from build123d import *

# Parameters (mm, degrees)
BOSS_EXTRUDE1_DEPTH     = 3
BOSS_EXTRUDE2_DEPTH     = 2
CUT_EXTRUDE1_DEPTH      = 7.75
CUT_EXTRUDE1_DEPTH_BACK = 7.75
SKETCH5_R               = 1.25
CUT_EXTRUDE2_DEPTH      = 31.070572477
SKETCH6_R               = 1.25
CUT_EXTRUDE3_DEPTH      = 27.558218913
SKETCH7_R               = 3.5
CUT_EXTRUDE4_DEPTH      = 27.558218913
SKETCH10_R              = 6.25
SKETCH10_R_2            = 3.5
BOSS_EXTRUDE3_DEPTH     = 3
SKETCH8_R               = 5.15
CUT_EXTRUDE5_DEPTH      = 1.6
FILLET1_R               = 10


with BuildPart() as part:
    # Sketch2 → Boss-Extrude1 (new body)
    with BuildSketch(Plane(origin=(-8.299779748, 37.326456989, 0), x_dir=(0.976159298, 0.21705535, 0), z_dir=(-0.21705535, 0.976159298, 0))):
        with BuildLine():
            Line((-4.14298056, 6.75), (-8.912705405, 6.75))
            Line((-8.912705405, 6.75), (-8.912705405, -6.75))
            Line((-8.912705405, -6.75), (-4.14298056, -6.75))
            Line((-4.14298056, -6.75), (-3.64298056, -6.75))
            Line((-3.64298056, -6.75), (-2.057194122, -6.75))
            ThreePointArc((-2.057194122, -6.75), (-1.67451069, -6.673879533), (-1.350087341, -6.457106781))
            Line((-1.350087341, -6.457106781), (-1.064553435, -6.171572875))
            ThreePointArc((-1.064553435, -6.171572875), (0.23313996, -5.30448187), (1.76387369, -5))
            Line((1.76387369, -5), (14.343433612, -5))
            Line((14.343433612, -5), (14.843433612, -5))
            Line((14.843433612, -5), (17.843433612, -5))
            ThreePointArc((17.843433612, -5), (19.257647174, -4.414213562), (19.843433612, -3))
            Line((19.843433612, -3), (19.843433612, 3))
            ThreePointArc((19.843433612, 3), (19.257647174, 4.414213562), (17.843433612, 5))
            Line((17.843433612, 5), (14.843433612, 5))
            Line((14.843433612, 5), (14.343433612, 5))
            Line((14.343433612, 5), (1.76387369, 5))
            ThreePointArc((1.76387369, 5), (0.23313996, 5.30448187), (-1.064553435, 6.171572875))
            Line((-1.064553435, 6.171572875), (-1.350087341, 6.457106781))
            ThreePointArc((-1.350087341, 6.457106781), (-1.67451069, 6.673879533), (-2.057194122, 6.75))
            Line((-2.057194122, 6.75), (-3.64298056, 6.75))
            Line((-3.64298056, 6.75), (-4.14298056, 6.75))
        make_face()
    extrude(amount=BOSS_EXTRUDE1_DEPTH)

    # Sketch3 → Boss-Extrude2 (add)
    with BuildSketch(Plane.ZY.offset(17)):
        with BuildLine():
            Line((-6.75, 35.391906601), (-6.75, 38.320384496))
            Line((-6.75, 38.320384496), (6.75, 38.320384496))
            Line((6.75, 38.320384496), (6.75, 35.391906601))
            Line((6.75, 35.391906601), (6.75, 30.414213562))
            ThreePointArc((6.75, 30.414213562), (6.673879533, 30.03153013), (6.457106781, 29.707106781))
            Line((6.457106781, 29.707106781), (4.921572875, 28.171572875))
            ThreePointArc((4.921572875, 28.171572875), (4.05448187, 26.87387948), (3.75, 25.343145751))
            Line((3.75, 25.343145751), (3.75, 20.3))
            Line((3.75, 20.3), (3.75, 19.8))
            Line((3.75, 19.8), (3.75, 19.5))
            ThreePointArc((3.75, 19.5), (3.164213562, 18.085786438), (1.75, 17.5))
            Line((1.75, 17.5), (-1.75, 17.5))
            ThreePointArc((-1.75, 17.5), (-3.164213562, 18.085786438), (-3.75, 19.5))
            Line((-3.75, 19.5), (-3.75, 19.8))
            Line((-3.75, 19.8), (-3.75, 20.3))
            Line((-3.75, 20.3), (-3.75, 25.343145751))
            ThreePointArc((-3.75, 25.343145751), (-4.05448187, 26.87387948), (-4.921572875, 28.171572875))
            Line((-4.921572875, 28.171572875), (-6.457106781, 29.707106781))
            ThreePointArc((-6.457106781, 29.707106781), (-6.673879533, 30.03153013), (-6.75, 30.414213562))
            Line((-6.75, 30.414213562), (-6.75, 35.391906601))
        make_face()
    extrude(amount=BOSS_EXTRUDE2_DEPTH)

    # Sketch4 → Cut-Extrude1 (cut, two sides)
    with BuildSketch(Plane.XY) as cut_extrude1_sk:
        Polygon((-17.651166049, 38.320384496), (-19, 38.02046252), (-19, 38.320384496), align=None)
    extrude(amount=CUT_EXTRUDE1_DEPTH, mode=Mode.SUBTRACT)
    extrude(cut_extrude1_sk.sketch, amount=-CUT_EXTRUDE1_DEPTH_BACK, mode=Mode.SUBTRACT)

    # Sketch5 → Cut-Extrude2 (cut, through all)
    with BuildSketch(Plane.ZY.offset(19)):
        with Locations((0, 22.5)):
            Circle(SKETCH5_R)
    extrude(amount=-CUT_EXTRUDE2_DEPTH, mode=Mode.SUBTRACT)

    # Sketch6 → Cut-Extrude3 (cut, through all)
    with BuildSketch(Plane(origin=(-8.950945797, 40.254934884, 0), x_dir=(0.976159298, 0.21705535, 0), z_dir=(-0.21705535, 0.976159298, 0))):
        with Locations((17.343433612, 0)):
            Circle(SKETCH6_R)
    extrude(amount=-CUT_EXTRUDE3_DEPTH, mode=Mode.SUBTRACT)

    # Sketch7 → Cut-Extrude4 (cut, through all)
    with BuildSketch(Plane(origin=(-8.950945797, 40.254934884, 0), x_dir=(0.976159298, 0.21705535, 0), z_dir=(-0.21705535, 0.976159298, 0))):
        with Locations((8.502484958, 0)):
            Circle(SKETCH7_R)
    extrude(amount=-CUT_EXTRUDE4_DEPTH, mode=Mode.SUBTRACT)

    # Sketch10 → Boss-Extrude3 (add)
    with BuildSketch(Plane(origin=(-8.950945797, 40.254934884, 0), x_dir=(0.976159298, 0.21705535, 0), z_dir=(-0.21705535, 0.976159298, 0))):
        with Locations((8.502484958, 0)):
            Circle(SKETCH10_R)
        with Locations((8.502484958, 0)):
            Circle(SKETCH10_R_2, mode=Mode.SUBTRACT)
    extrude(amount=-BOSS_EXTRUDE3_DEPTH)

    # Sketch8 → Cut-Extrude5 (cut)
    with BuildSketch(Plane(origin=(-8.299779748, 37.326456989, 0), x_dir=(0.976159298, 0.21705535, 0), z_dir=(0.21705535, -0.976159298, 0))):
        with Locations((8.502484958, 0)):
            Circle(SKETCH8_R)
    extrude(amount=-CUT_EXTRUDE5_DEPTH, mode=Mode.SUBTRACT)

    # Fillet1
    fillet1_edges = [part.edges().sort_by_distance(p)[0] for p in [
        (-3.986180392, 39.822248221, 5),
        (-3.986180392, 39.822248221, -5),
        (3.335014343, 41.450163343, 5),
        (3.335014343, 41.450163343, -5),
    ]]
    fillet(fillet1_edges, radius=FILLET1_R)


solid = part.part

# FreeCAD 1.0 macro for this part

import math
import FreeCAD as App
import Part
import Sketcher
Q = App.Units.Quantity


def edges_at(feature, points):
    """Names of the edges that pass closest to the given points."""
    edges = feature.Shape.Edges
    near = lambda p: min(range(len(edges)), key=lambda i: edges[i].distToShape(Part.Vertex(*p))[0])
    return sorted({f"Edge{near(p) + 1}" for p in points})

doc = App.newDocument("Part")
body = doc.addObject("PartDesign::Body", "Body")

# Sketch on an angled plane
sketch1 = doc.addObject("Sketcher::SketchObject", "Sketch")
body.addObject(sketch1)
sketch1.Placement = App.Placement(App.Vector(-8.29978, 37.326457, 0), App.Rotation(App.Vector(0.976159298, 0.21705535, 0), App.Vector(0, 0, -1), App.Vector(-0.21705535, 0.976159298, 0), "ZXY"))
sketch1.addGeometry([
    Part.LineSegment(App.Vector(-8.91, 6.75, 0), App.Vector(-8.91, -6.75, 0)),  # 0
    Part.LineSegment(App.Vector(-8.91, -6.75, 0), App.Vector(-2.06, -6.75, 0)),  # 1
    Part.ArcOfCircle(Part.Circle(App.Vector(-2.06, -5.75, 0), App.Vector(0, 0, 1), 1), math.radians(-90), math.radians(-45)),  # 2
    Part.LineSegment(App.Vector(-1.35, -6.46, 0), App.Vector(-1.06, -6.17, 0)),  # 3
    Part.ArcOfCircle(Part.Circle(App.Vector(1.76, -9, 0), App.Vector(0, 0, 1), 4), math.radians(90), math.radians(135)),  # 4
    Part.LineSegment(App.Vector(1.76, -5, 0), App.Vector(17.84, -5, 0)),  # 5
    Part.ArcOfCircle(Part.Circle(App.Vector(17.84, -3, 0), App.Vector(0, 0, 1), 2), math.radians(-90), math.radians(0)),  # 6
    Part.LineSegment(App.Vector(19.84, -3, 0), App.Vector(19.84, 3, 0)),  # 7
    Part.ArcOfCircle(Part.Circle(App.Vector(17.84, 3, 0), App.Vector(0, 0, 1), 2), math.radians(0), math.radians(90)),  # 8
    Part.LineSegment(App.Vector(17.84, 5, 0), App.Vector(1.76, 5, 0)),  # 9
    Part.ArcOfCircle(Part.Circle(App.Vector(1.76, 9, 0), App.Vector(0, 0, 1), 4), math.radians(-135), math.radians(-90)),  # 10
    Part.LineSegment(App.Vector(-1.06, 6.17, 0), App.Vector(-1.35, 6.46, 0)),  # 11
    Part.ArcOfCircle(Part.Circle(App.Vector(-2.06, 5.75, 0), App.Vector(0, 0, 1), 1), math.radians(45), math.radians(90)),  # 12
    Part.LineSegment(App.Vector(-2.06, 6.75, 0), App.Vector(-8.91, 6.75, 0)),  # 13
], False)
sketch1.addConstraint([
    Sketcher.Constraint("Coincident", 0, 2, 1, 1),
    Sketcher.Constraint("Tangent", 1, 2, 2, 1),
    Sketcher.Constraint("Tangent", 2, 2, 3, 1),
    Sketcher.Constraint("Tangent", 3, 2, 4, 2),
    Sketcher.Constraint("Tangent", 4, 1, 5, 1),
    Sketcher.Constraint("Tangent", 5, 2, 6, 1),
    Sketcher.Constraint("Tangent", 6, 2, 7, 1),
    Sketcher.Constraint("Tangent", 7, 2, 8, 1),
    Sketcher.Constraint("Tangent", 8, 2, 9, 1),
    Sketcher.Constraint("Tangent", 9, 2, 10, 2),
    Sketcher.Constraint("Tangent", 10, 1, 11, 1),
    Sketcher.Constraint("Tangent", 11, 2, 12, 1),
    Sketcher.Constraint("Tangent", 12, 2, 13, 1),
    Sketcher.Constraint("Coincident", 13, 2, 0, 1),
    Sketcher.Constraint("Vertical", 0),
    Sketcher.Constraint("Horizontal", 1),
    Sketcher.Constraint("Horizontal", 5),
    Sketcher.Constraint("Vertical", 7),
    Sketcher.Constraint("Horizontal", 9),
    Sketcher.Constraint("Horizontal", 13),
    Sketcher.Constraint("Equal", 6, 8),
    Sketcher.Constraint("Equal", 4, 10),
    Sketcher.Constraint("Equal", 2, 12),
    Sketcher.Constraint("Symmetric", 4, 3, 10, 3, -1),
    Sketcher.Constraint("Symmetric", 2, 3, 12, 3, -1),
    Sketcher.Constraint("Perpendicular", 3, 11),
    Sketcher.Constraint("Radius", 2, Q("1 mm")),
    Sketcher.Constraint("Radius", 4, Q("4 mm")),
    Sketcher.Constraint("Radius", 6, Q("2 mm")),
    Sketcher.Constraint("DistanceY", 7, 1, 7, 2, Q("6 mm")),
    Sketcher.Constraint("DistanceY", 0, 2, 0, 1, Q("13.5 mm")),
    Sketcher.Constraint("DistanceX", 1, 1, 1, 2, Q("6.855511 mm")),
    Sketcher.Constraint("DistanceX", 5, 1, 5, 2, Q("16.07956 mm")),
    Sketcher.Constraint("DistanceX", 2, 3, -1, 1, Q("2.057194 mm")),
])
pad1 = doc.addObject("PartDesign::Pad", "Pad")
body.addObject(pad1)
pad1.Profile = sketch1
pad1.Length = 3

# Sketch on YZ plane
sketch2 = doc.addObject("Sketcher::SketchObject", "Sketch001")
body.addObject(sketch2)
sketch2.AttachmentSupport = (doc.YZ_Plane, [""])
sketch2.MapMode = "FlatFace"
sketch2.AttachmentOffset = App.Placement(App.Vector(0, 0, -17), App.Rotation())
sketch2.addGeometry([
    Part.LineSegment(App.Vector(38.3, 6.8, 0), App.Vector(38.3, -6.8, 0)),  # 0
    Part.LineSegment(App.Vector(38.3, -6.8, 0), App.Vector(30.4, -6.8, 0)),  # 1
    Part.ArcOfCircle(Part.Circle(App.Vector(30.4, -5.8, 0), App.Vector(0, 0, 1), 1), math.radians(-135), math.radians(-90)),  # 2
    Part.LineSegment(App.Vector(29.7, -6.5, 0), App.Vector(28.2, -4.9, 0)),  # 3
    Part.ArcOfCircle(Part.Circle(App.Vector(25.3, -7.8, 0), App.Vector(0, 0, 1), 4), math.radians(45), math.radians(90)),  # 4
    Part.LineSegment(App.Vector(25.3, -3.8, 0), App.Vector(19.5, -3.8, 0)),  # 5
    Part.ArcOfCircle(Part.Circle(App.Vector(19.5, -1.7, 0), App.Vector(0, 0, 1), 2), math.radians(-180), math.radians(-90)),  # 6
    Part.LineSegment(App.Vector(17.5, -1.8, 0), App.Vector(17.5, 1.8, 0)),  # 7
    Part.ArcOfCircle(Part.Circle(App.Vector(19.5, 1.7, 0), App.Vector(0, 0, 1), 2), math.radians(90), math.radians(180)),  # 8
    Part.LineSegment(App.Vector(19.5, 3.8, 0), App.Vector(25.3, 3.8, 0)),  # 9
    Part.ArcOfCircle(Part.Circle(App.Vector(25.3, 7.8, 0), App.Vector(0, 0, 1), 4), math.radians(-90), math.radians(-45)),  # 10
    Part.LineSegment(App.Vector(28.2, 4.9, 0), App.Vector(29.7, 6.5, 0)),  # 11
    Part.ArcOfCircle(Part.Circle(App.Vector(30.4, 5.8, 0), App.Vector(0, 0, 1), 1), math.radians(90), math.radians(135)),  # 12
    Part.LineSegment(App.Vector(30.4, 6.8, 0), App.Vector(38.3, 6.8, 0)),  # 13
], False)
sketch2.addConstraint([
    Sketcher.Constraint("Coincident", 0, 2, 1, 1),
    Sketcher.Constraint("Tangent", 1, 2, 2, 2),
    Sketcher.Constraint("Tangent", 2, 1, 3, 1),
    Sketcher.Constraint("Tangent", 3, 2, 4, 1),
    Sketcher.Constraint("Tangent", 4, 2, 5, 1),
    Sketcher.Constraint("Tangent", 5, 2, 6, 2),
    Sketcher.Constraint("Tangent", 6, 1, 7, 1),
    Sketcher.Constraint("Tangent", 7, 2, 8, 2),
    Sketcher.Constraint("Tangent", 8, 1, 9, 1),
    Sketcher.Constraint("Tangent", 9, 2, 10, 1),
    Sketcher.Constraint("Tangent", 10, 2, 11, 1),
    Sketcher.Constraint("Tangent", 11, 2, 12, 2),
    Sketcher.Constraint("Tangent", 12, 1, 13, 1),
    Sketcher.Constraint("Coincident", 13, 2, 0, 1),
    Sketcher.Constraint("Vertical", 0),
    Sketcher.Constraint("Horizontal", 1),
    Sketcher.Constraint("Horizontal", 5),
    Sketcher.Constraint("Vertical", 7),
    Sketcher.Constraint("Horizontal", 9),
    Sketcher.Constraint("Horizontal", 13),
    Sketcher.Constraint("Equal", 6, 8),
    Sketcher.Constraint("Equal", 4, 10),
    Sketcher.Constraint("Equal", 2, 12),
    Sketcher.Constraint("Symmetric", 4, 3, 10, 3, -1),
    Sketcher.Constraint("Symmetric", 2, 3, 12, 3, -1),
    Sketcher.Constraint("Perpendicular", 3, 11),
    Sketcher.Constraint("Radius", 2, Q("1 mm")),
    Sketcher.Constraint("Radius", 4, Q("4 mm")),
    Sketcher.Constraint("Radius", 6, Q("2 mm")),
    Sketcher.Constraint("DistanceY", 0, 2, 0, 1, Q("13.5 mm")),
    Sketcher.Constraint("DistanceY", 7, 1, 7, 2, Q("3.5 mm")),
    Sketcher.Constraint("DistanceX", -1, 1, 6, 3, Q("19.5 mm")),
    Sketcher.Constraint("DistanceX", 1, 2, 1, 1, Q("7.906171 mm")),
    Sketcher.Constraint("DistanceX", 5, 2, 5, 1, Q("5.843146 mm")),
])
pad2 = doc.addObject("PartDesign::Pad", "Pad001")
body.addObject(pad2)
pad2.Profile = sketch2
pad2.Length = 2
pad2.Reversed = True

# Sketch on XY plane
sketch3 = doc.addObject("Sketcher::SketchObject", "Sketch002")
body.addObject(sketch3)
sketch3.AttachmentSupport = (doc.XY_Plane, [""])
sketch3.MapMode = "FlatFace"
sketch3.addGeometry([
    Part.LineSegment(App.Vector(-19, 38.02, 0), App.Vector(-17.65, 38.32, 0)),
    Part.LineSegment(App.Vector(-17.65, 38.32, 0), App.Vector(-19, 38.32, 0)),
    Part.LineSegment(App.Vector(-19, 38.32, 0), App.Vector(-19, 38.02, 0)),
], False)
sketch3.addConstraint([
    Sketcher.Constraint("Coincident", 0, 2, 1, 1),
    Sketcher.Constraint("Coincident", 1, 2, 2, 1),
    Sketcher.Constraint("Coincident", 2, 2, 0, 1),
    Sketcher.Constraint("Horizontal", 1),
    Sketcher.Constraint("Vertical", 2),
    Sketcher.Constraint("DistanceX", 1, 2, -1, 1, Q("19 mm")),
    Sketcher.Constraint("DistanceY", 2, 2, 2, 1, Q("0.299922 mm")),
    Sketcher.Constraint("DistanceX", 1, 2, 1, 1, Q("1.348834 mm")),
    Sketcher.Constraint("DistanceY", -1, 1, 0, 2, Q("38.320384 mm")),
])
pocket1 = doc.addObject("PartDesign::Pocket", "Pocket")
body.addObject(pocket1)
pocket1.Profile = sketch3
pocket1.Type = "ThroughAll"
pocket1.Midplane = True

# Sketch on YZ plane
sketch4 = doc.addObject("Sketcher::SketchObject", "Sketch003")
body.addObject(sketch4)
sketch4.AttachmentSupport = (doc.YZ_Plane, [""])
sketch4.MapMode = "FlatFace"
sketch4.AttachmentOffset = App.Placement(App.Vector(0, 0, -19), App.Rotation())
sketch4.addGeometry(Part.Circle(App.Vector(22.5, 0, 0), App.Vector(0, 0, 1), 1.2), False)
sketch4.addConstraint([
    Sketcher.Constraint("PointOnObject", 0, 3, -1),
    Sketcher.Constraint("Diameter", 0, Q("2.5 mm")),
    Sketcher.Constraint("DistanceX", -1, 1, 0, 3, Q("22.5 mm")),
])
pocket2 = doc.addObject("PartDesign::Pocket", "Pocket001")
body.addObject(pocket2)
pocket2.Profile = sketch4
pocket2.Type = "ThroughAll"
pocket2.Reversed = True

# Sketch on an angled plane
sketch5 = doc.addObject("Sketcher::SketchObject", "Sketch004")
body.addObject(sketch5)
sketch5.Placement = App.Placement(App.Vector(-8.950946, 40.254935, 0), App.Rotation(App.Vector(0.976159298, 0.21705535, 0), App.Vector(0, 0, -1), App.Vector(-0.21705535, 0.976159298, 0), "ZXY"))
sketch5.addGeometry(Part.Circle(App.Vector(17.3, 0, 0), App.Vector(0, 0, 1), 1.2), False)
sketch5.addConstraint([
    Sketcher.Constraint("PointOnObject", 0, 3, -1),
    Sketcher.Constraint("Diameter", 0, Q("2.5 mm")),
    Sketcher.Constraint("DistanceX", -1, 1, 0, 3, Q("17.343434 mm")),
])
pocket3 = doc.addObject("PartDesign::Pocket", "Pocket002")
body.addObject(pocket3)
pocket3.Profile = sketch5
pocket3.Type = "ThroughAll"

# Sketch on an angled plane
sketch6 = doc.addObject("Sketcher::SketchObject", "Sketch005")
body.addObject(sketch6)
sketch6.Placement = App.Placement(App.Vector(-8.950946, 40.254935, 0), App.Rotation(App.Vector(0.976159298, 0.21705535, 0), App.Vector(0, 0, -1), App.Vector(-0.21705535, 0.976159298, 0), "ZXY"))
sketch6.addGeometry(Part.Circle(App.Vector(8.5, 0, 0), App.Vector(0, 0, 1), 3.5), False)
sketch6.addConstraint([
    Sketcher.Constraint("PointOnObject", 0, 3, -1),
    Sketcher.Constraint("Diameter", 0, Q("7 mm")),
    Sketcher.Constraint("DistanceX", -1, 1, 0, 3, Q("8.502485 mm")),
])
pocket4 = doc.addObject("PartDesign::Pocket", "Pocket003")
body.addObject(pocket4)
pocket4.Profile = sketch6
pocket4.Type = "ThroughAll"

# Sketch on an angled plane
sketch7 = doc.addObject("Sketcher::SketchObject", "Sketch006")
body.addObject(sketch7)
sketch7.Placement = App.Placement(App.Vector(-8.950946, 40.254935, 0), App.Rotation(App.Vector(0.976159298, 0.21705535, 0), App.Vector(0, 0, -1), App.Vector(-0.21705535, 0.976159298, 0), "ZXY"))
sketch7.addGeometry([
    Part.Circle(App.Vector(8.5, 0, 0), App.Vector(0, 0, 1), 6.2),
    Part.Circle(App.Vector(8.5, 0, 0), App.Vector(0, 0, 1), 3.5),
], False)
sketch7.addConstraint([
    Sketcher.Constraint("Coincident", 1, 3, 0, 3),
    Sketcher.Constraint("PointOnObject", 0, 3, -1),
    Sketcher.Constraint("Diameter", 1, Q("7 mm")),
    Sketcher.Constraint("Diameter", 0, Q("12.5 mm")),
    Sketcher.Constraint("DistanceX", -1, 1, 0, 3, Q("8.502485 mm")),
])
pad3 = doc.addObject("PartDesign::Pad", "Pad002")
body.addObject(pad3)
pad3.Profile = sketch7
pad3.Length = 3
pad3.Reversed = True

# Sketch on an angled plane
sketch8 = doc.addObject("Sketcher::SketchObject", "Sketch007")
body.addObject(sketch8)
sketch8.Placement = App.Placement(App.Vector(-8.29978, 37.326457, 0), App.Rotation(App.Vector(0.976159298, 0.21705535, 0), App.Vector(0, 0, 1), App.Vector(0.21705535, -0.976159298, 0), "ZXY"))
sketch8.addGeometry(Part.Circle(App.Vector(9, 0, 0), App.Vector(0, 0, 1), 5), False)
sketch8.addConstraint([
    Sketcher.Constraint("PointOnObject", 0, 3, -1),
    Sketcher.Constraint("Diameter", 0, Q("10.3 mm")),
    Sketcher.Constraint("DistanceX", -1, 1, 0, 3, Q("8.502485 mm")),
])
pocket5 = doc.addObject("PartDesign::Pocket", "Pocket004")
body.addObject(pocket5)
pocket5.Profile = sketch8
pocket5.Length = 1.6
doc.recompute()

fillet = doc.addObject("PartDesign::Fillet", "Fillet")
body.addObject(fillet)
fillet.Base = (pocket5, edges_at(pocket5, [
    (-3.986, 39.822, 5),
    (-3.986, 39.822, -5),
    (3.335, 41.45, 5),
    (3.335, 41.45, -5),
]))
fillet.Radius = 10

doc.recompute()
